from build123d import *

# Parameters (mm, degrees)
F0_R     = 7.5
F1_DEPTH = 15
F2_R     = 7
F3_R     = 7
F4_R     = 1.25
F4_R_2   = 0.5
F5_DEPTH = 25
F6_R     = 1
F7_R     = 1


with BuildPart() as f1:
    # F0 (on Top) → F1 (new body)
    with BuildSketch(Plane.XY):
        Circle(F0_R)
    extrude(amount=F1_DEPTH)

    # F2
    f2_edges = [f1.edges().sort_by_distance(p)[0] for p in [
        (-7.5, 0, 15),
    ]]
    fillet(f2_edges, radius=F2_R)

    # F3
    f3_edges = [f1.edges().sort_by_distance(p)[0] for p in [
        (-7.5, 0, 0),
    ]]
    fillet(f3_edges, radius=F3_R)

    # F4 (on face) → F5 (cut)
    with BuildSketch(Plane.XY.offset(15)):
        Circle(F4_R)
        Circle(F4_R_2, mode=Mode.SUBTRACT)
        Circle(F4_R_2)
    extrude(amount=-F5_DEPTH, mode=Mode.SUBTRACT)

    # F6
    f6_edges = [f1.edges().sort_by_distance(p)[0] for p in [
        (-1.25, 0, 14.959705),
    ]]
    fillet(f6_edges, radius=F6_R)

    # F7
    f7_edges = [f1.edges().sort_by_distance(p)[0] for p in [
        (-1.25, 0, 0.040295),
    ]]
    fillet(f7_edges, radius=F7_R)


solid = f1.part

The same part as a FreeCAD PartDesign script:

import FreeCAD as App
import Part
import Sketcher


def edges_at(feature, points):
    """Names of the edges that pass closest to the given points."""
    edges = feature.Shape.Edges
    near = lambda p: min(range(len(edges)), key=lambda i: edges[i].distToShape(Part.Vertex(*p))[0])
    return sorted({f"Edge{near(p) + 1}" for p in points})

doc = App.newDocument("Part")
body = doc.addObject("PartDesign::Body", "Body")

# Sketch on XY plane
sketch1 = doc.addObject("Sketcher::SketchObject", "Sketch")
body.addObject(sketch1)
sketch1.AttachmentSupport = (doc.XY_Plane, [""])
sketch1.MapMode = "FlatFace"
sketch1.addGeometry(Part.Circle(App.Vector(0, 0, 0), App.Vector(0, 0, 1), 8), False)
sketch1.addConstraint([
    Sketcher.Constraint("Coincident", 0, 3, -1, 1),
    Sketcher.Constraint("Diameter", 0, 15.0),
])
pad1 = doc.addObject("PartDesign::Pad", "Pad")
body.addObject(pad1)
pad1.Profile = sketch1
pad1.Length = 15
doc.recompute()

fillet = doc.addObject("PartDesign::Fillet", "Fillet")
body.addObject(fillet)
fillet.Base = (pad1, edges_at(pad1, [(-7.5, 0, 15)]))
fillet.Radius = 7
doc.recompute()

fillet2 = doc.addObject("PartDesign::Fillet", "Fillet001")
body.addObject(fillet2)
fillet2.Base = (fillet, edges_at(fillet, [(-7.5, 0, 0)]))
fillet2.Radius = 7

# Sketch on XY plane
sketch2 = doc.addObject("Sketcher::SketchObject", "Sketch001")
body.addObject(sketch2)
sketch2.AttachmentSupport = (doc.XY_Plane, [""])
sketch2.MapMode = "FlatFace"
sketch2.AttachmentOffset = App.Placement(App.Vector(0, 0, 15), App.Rotation())
sketch2.addGeometry(Part.Circle(App.Vector(0, 0, 0), App.Vector(0, 0, 1), 1.2), False)
sketch2.addConstraint([
    Sketcher.Constraint("Coincident", 0, 3, -1, 1),
    Sketcher.Constraint("Diameter", 0, 2.5),
])
pocket1 = doc.addObject("PartDesign::Pocket", "Pocket")
body.addObject(pocket1)
pocket1.Profile = sketch2
pocket1.Length = 25
doc.recompute()

fillet3 = doc.addObject("PartDesign::Fillet", "Fillet002")
body.addObject(fillet3)
fillet3.Base = (pocket1, edges_at(pocket1, [(-1.25, 0, 14.96)]))
fillet3.Radius = 1
doc.recompute()

fillet4 = doc.addObject("PartDesign::Fillet", "Fillet003")
body.addObject(fillet4)
fillet4.Base = (fillet3, edges_at(fillet3, [(-1.25, 0, 0.04)]))
fillet4.Radius = 1

doc.recompute()
